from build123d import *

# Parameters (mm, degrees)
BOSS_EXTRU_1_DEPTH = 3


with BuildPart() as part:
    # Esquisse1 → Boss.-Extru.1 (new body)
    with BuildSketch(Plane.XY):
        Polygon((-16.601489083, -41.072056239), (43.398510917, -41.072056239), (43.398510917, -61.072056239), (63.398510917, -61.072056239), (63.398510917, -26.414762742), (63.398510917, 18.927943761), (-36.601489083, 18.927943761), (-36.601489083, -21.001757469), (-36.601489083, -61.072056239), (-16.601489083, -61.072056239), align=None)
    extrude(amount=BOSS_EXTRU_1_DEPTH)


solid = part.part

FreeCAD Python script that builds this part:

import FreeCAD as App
import Part
import Sketcher
from FreeCAD import Vector
Q = App.Units.Quantity


def add_polygon(sketch, points):
    """Adds a closed chain of lines whose ends are joined by coincident constraints."""
    first, n = sketch.GeometryCount, len(points)
    for a, b in zip(points, points[1:] + points[:1]):
        sketch.addGeometry(Part.LineSegment(App.Vector(*a, 0), App.Vector(*b, 0)), False)
    for i in range(n):
        sketch.addConstraint(Sketcher.Constraint("Coincident", first + i, 2, first + (i + 1) % n, 1))

doc = App.newDocument("Part")
params = doc.addObject("Spreadsheet::Sheet", "Params")
for row, (alias, value) in enumerate([
    ("sketch1_width", "60 mm"),
    ("sketch1_width2", "20 mm"),
    ("sketch1_height", "80 mm"),
    ("pad1_length", "3 mm"),
], start=1):
    params.set(f"A{row}", alias)
    params.set(f"B{row}", "=" + value)
    params.setAlias(f"B{row}", alias)

body = doc.addObject("PartDesign::Body", "Body")

# Sketch on XY plane
sketch1 = body.newObject("Sketcher::SketchObject", "Sketch")
sketch1.AttachmentSupport = (doc.getObject("XY_Plane"), [""])
sketch1.MapMode = "FlatFace"
add_polygon(sketch1, [(-17, -41), (43, -41), (43, -61), (63, -61), (63, 19), (-37, 19), (-37, -61), (-17, -61)])  # lines 0-7
sketch1.addConstraint(Sketcher.Constraint("Horizontal", 0))
sketch1.addConstraint(Sketcher.Constraint("Vertical", 1))
sketch1.addConstraint(Sketcher.Constraint("Horizontal", 2))
sketch1.addConstraint(Sketcher.Constraint("Vertical", 3))
sketch1.addConstraint(Sketcher.Constraint("Horizontal", 4))
sketch1.addConstraint(Sketcher.Constraint("Vertical", 5))
sketch1.addConstraint(Sketcher.Constraint("Horizontal", 6))
sketch1.addConstraint(Sketcher.Constraint("Vertical", 7))
sketch1.addConstraint(Sketcher.Constraint("Horizontal", 2, 2, 5, 2))
sketch1.addConstraint(Sketcher.Constraint("Equal", 2, 6))
sketch1.addConstraint(Sketcher.Constraint("Equal", 6, 1))
sketch1.addConstraint(Sketcher.Constraint("DistanceX", 0, 1, 0, 2, Q("60 mm")))
sketch1.addConstraint(Sketcher.Constraint("DistanceX", 2, 1, 2, 2, Q("20 mm")))
sketch1.addConstraint(Sketcher.Constraint("DistanceY", 3, 1, 3, 2, Q("80 mm")))
sketch1.addConstraint(Sketcher.Constraint("DistanceX", -1, 1, 0, 2, Q("43.398511 mm")))
sketch1.addConstraint(Sketcher.Constraint("DistanceY", 0, 2, -1, 1, Q("41.072056 mm")))
sketch1.setExpression("Constraints[19]", "Params.sketch1_width")
sketch1.setExpression("Constraints[20]", "Params.sketch1_width2")
sketch1.setExpression("Constraints[21]", "Params.sketch1_height")
pad1 = body.newObject("PartDesign::Pad", "Pad")
pad1.Profile = sketch1
pad1.setExpression("Length", "Params.pad1_length")

doc.recompute()
